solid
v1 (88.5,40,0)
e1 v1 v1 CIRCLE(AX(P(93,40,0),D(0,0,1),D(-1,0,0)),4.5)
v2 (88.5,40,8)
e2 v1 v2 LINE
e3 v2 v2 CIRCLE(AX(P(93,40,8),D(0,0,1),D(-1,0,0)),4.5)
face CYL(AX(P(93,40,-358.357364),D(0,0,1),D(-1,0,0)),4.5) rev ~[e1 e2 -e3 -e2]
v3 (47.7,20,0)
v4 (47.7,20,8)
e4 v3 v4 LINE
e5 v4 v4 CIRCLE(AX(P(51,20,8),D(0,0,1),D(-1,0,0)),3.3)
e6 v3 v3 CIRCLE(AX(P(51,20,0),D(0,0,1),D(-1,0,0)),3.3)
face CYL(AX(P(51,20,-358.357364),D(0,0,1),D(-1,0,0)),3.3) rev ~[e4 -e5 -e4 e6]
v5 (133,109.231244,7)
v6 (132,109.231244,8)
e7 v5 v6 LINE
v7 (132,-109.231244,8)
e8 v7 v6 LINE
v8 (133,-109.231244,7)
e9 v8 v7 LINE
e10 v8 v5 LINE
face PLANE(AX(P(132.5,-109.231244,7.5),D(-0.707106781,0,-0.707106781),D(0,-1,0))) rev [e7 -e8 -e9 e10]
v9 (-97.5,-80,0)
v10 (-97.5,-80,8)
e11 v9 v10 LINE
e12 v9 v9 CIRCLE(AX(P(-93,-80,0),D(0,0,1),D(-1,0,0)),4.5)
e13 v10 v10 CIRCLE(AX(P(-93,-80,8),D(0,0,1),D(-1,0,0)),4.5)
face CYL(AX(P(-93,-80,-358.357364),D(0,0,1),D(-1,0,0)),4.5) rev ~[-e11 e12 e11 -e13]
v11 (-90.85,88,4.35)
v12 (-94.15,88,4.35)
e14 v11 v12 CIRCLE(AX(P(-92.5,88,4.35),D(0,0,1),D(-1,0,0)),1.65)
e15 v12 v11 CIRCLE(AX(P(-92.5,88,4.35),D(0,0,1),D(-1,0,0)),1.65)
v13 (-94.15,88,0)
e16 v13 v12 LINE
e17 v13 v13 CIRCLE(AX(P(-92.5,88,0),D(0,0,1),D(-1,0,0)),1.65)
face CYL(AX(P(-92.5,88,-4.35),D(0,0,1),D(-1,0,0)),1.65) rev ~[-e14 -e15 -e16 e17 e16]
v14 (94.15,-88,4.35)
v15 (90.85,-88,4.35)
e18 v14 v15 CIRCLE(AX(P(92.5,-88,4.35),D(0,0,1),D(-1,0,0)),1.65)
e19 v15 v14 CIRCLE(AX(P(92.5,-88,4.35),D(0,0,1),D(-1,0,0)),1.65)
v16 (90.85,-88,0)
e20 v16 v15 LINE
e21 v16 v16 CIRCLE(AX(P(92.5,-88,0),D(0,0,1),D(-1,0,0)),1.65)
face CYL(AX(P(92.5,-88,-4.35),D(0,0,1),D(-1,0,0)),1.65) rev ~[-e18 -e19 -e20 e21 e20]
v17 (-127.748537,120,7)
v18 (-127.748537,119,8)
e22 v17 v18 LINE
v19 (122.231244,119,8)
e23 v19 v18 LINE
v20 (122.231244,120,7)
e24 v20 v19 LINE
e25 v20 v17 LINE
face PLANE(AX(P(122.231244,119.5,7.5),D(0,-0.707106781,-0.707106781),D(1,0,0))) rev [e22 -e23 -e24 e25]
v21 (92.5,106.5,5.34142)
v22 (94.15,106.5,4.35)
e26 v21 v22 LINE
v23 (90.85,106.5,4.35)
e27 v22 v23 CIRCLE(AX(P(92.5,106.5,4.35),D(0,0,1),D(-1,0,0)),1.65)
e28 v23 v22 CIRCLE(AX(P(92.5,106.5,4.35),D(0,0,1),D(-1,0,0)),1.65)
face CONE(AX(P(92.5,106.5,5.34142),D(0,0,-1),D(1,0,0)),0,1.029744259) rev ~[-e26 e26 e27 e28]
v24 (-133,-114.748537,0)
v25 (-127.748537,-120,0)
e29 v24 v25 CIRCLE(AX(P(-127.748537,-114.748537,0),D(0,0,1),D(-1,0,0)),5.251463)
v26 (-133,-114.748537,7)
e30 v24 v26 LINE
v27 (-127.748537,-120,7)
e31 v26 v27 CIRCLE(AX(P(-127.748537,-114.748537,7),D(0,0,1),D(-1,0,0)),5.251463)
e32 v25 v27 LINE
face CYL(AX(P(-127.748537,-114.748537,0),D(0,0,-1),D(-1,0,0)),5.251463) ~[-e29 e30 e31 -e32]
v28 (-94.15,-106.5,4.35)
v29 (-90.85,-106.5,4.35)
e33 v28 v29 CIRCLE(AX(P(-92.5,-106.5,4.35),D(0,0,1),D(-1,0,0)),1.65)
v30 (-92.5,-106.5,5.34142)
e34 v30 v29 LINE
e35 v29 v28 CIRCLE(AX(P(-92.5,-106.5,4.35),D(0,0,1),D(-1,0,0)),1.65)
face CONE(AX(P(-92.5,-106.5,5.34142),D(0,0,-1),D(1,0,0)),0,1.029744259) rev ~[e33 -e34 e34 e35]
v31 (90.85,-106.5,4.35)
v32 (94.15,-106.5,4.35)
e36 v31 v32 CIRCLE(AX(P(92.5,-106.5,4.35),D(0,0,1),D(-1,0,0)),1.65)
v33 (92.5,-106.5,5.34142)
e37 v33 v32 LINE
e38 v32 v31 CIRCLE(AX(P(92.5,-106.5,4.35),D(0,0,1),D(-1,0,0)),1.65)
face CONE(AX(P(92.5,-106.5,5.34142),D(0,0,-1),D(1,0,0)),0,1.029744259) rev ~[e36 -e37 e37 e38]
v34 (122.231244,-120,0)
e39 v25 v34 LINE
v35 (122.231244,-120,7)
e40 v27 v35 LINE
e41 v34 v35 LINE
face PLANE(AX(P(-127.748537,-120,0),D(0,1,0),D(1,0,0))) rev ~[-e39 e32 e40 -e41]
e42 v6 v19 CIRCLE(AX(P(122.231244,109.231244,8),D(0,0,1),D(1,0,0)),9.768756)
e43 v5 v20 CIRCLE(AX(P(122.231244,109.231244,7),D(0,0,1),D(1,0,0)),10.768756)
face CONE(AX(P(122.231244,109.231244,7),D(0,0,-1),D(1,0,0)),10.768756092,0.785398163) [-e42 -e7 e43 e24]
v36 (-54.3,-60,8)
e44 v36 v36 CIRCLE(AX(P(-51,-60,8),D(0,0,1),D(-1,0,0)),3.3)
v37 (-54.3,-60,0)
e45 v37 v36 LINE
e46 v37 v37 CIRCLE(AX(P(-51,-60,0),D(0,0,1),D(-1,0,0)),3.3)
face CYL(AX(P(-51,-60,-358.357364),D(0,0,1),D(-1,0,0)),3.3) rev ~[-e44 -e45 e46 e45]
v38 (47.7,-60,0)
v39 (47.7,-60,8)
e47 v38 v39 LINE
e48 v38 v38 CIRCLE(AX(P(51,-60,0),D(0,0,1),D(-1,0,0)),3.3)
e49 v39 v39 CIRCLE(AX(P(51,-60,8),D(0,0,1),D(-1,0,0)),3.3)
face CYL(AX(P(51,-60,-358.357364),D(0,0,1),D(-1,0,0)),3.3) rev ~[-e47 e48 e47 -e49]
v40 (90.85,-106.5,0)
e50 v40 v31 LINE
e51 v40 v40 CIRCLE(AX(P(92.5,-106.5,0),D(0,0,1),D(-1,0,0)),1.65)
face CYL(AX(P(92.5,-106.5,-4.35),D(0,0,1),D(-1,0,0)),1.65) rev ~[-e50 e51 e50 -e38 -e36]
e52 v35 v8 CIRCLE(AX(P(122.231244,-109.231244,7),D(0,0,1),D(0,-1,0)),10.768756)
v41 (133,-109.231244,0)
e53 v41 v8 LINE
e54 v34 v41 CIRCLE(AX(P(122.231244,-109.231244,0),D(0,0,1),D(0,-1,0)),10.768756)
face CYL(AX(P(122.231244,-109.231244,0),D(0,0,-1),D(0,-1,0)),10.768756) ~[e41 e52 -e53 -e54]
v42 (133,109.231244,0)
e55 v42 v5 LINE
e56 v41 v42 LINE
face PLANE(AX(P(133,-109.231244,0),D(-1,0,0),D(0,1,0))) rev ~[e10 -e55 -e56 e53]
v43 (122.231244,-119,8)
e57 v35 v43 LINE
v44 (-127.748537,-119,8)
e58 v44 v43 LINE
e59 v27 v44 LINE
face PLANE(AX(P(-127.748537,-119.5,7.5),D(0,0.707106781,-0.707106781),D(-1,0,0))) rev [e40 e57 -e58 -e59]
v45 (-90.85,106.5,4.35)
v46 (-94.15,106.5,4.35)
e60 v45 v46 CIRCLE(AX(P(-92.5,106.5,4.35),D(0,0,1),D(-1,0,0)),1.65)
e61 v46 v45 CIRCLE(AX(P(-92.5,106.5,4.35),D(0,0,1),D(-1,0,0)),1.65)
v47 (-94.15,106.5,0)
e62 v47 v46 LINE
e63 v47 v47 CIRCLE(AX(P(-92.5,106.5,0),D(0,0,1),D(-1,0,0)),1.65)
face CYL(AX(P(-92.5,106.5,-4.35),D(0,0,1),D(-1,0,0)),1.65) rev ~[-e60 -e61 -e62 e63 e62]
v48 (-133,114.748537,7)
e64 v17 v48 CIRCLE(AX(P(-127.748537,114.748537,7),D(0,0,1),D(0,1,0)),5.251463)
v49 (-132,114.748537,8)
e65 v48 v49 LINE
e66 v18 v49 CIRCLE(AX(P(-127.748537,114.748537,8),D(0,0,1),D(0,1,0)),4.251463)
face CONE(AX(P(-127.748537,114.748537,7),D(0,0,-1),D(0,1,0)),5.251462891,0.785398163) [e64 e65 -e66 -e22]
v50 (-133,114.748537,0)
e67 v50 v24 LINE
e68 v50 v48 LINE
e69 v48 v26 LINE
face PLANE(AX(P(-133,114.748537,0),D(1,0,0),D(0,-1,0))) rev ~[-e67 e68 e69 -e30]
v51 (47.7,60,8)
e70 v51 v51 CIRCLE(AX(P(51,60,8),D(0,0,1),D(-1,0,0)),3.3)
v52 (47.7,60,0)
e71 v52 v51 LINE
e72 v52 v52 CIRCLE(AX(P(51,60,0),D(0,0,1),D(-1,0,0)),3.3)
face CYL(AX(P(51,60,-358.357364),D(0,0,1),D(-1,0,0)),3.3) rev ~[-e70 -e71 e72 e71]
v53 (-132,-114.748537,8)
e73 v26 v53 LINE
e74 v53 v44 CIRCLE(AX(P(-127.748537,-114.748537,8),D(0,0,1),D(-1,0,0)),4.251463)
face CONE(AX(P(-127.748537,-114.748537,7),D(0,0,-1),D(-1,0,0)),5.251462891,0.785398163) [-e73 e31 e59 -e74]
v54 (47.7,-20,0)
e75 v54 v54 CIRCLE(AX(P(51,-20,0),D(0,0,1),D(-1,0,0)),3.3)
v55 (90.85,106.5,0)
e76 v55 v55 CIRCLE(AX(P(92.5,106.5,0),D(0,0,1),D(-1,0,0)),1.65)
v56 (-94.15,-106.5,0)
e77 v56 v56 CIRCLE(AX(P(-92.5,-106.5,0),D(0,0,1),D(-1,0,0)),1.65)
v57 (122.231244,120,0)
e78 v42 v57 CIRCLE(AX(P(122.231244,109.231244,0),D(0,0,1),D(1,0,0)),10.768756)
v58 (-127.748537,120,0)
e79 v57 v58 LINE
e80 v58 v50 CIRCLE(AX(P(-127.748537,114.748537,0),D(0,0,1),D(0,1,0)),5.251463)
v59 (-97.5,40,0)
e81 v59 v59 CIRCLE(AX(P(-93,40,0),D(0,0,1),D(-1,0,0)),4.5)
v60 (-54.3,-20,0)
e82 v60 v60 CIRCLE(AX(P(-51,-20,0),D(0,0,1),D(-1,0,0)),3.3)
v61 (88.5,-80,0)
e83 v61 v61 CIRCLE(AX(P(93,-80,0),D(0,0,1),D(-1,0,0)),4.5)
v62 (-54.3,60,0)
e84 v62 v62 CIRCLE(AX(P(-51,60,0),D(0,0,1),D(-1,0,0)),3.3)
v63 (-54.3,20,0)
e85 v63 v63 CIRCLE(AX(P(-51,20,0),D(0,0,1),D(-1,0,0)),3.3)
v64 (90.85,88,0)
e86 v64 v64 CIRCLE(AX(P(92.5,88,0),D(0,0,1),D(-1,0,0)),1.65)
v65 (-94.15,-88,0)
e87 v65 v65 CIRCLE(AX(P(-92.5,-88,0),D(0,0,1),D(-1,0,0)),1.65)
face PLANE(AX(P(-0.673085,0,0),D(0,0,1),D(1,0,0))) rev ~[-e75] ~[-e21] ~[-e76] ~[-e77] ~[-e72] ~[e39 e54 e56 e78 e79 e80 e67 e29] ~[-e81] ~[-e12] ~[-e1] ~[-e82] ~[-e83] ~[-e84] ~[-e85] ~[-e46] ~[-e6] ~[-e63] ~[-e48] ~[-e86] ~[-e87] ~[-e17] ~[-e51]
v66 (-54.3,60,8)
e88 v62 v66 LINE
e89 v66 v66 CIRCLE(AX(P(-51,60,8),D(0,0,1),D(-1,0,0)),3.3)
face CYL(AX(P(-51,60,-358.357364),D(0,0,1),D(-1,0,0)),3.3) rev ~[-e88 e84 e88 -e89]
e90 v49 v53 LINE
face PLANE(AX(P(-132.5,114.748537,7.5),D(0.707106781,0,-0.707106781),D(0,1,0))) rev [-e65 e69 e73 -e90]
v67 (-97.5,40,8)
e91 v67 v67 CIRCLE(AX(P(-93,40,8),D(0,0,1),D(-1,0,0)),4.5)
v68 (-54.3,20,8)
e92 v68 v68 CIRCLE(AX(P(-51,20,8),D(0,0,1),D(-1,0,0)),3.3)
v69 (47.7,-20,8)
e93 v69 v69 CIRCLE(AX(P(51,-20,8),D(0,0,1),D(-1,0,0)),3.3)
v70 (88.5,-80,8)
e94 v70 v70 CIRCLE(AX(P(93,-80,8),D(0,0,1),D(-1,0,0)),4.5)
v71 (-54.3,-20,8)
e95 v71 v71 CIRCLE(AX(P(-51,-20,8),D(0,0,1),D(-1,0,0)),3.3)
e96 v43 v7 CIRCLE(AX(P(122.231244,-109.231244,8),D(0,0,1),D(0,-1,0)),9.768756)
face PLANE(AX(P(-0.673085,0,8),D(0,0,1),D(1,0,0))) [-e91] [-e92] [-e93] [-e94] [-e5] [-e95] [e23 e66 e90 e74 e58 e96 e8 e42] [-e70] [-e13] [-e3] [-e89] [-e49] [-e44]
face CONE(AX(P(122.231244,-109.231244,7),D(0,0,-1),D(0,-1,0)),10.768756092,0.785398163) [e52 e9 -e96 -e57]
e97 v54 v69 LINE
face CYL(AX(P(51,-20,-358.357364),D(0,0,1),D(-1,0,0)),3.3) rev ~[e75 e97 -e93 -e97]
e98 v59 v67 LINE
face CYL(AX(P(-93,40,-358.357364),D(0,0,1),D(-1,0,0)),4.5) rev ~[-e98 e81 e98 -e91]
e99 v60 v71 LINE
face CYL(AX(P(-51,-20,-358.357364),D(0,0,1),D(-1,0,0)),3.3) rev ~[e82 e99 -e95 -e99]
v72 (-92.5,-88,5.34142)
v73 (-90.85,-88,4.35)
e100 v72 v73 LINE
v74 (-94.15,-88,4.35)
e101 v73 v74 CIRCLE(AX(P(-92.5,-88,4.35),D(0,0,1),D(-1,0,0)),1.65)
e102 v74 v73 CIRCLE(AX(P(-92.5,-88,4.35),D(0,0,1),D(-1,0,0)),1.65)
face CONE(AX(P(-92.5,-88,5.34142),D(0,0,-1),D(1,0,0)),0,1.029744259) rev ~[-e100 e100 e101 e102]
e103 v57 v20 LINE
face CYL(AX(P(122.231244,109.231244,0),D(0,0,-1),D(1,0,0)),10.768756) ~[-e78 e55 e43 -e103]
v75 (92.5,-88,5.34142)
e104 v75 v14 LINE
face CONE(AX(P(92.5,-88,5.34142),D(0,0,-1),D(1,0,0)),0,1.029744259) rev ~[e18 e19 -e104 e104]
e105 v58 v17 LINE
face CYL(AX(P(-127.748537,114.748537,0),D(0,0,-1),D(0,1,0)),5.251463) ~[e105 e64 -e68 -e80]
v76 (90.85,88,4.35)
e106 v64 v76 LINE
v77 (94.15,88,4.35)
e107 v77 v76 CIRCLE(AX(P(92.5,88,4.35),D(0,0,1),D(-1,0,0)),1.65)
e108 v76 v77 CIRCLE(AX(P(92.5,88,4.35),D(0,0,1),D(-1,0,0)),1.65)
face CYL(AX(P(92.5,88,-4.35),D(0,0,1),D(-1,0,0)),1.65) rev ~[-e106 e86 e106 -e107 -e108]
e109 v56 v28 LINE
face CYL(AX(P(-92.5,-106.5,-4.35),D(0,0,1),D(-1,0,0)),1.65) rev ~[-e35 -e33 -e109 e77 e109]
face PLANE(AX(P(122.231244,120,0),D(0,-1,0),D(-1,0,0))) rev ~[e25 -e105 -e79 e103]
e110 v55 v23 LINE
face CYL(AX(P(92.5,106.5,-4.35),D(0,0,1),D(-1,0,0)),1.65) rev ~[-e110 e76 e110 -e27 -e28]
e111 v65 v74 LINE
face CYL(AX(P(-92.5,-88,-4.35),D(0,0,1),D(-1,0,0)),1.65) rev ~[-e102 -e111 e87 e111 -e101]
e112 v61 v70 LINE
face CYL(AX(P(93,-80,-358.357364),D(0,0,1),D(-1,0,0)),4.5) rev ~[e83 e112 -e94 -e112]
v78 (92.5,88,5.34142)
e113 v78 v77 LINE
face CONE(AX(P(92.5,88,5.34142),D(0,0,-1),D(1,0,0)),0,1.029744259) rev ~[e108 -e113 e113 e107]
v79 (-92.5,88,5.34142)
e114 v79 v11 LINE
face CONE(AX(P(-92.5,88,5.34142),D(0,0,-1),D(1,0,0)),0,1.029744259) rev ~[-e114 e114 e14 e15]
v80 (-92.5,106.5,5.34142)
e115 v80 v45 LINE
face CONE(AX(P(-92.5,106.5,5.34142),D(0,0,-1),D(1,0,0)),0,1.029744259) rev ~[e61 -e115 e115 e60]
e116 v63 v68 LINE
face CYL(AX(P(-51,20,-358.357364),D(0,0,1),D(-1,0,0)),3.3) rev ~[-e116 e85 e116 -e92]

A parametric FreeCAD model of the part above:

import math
import FreeCAD as App
import Part
import Sketcher
Q = App.Units.Quantity


def edges_at(feature, points):
    """Names of the edges that pass closest to the given points."""
    edges = feature.Shape.Edges
    near = lambda p: min(range(len(edges)), key=lambda i: edges[i].distToShape(Part.Vertex(*p))[0])
    return sorted({f"Edge{near(p) + 1}" for p in points})

doc = App.newDocument("Part")
body = doc.addObject("PartDesign::Body", "Body")

# Sketch on XY plane
sketch1 = body.newObject("Sketcher::SketchObject", "Sketch")
sketch1.AttachmentSupport = (doc.getObject("XY_Plane"), [""])
sketch1.MapMode = "FlatFace"
sketch1.addGeometry([
    Part.LineSegment(App.Vector(-128, -120, 0), App.Vector(122, -120, 0)),  # 0
    Part.ArcOfCircle(Part.Circle(App.Vector(122, -109, 0), App.Vector(0, 0, 1), 11), math.radians(-90), math.radians(0)),  # 1
    Part.LineSegment(App.Vector(133, -109, 0), App.Vector(133, 109, 0)),  # 2
    Part.ArcOfCircle(Part.Circle(App.Vector(122, 109, 0), App.Vector(0, 0, 1), 11), math.radians(0), math.radians(90)),  # 3
    Part.LineSegment(App.Vector(122, 120, 0), App.Vector(-128, 120, 0)),  # 4
    Part.ArcOfCircle(Part.Circle(App.Vector(-128, 115, 0), App.Vector(0, 0, 1), 5), math.radians(90), math.radians(180)),  # 5
    Part.LineSegment(App.Vector(-133, 115, 0), App.Vector(-133, -115, 0)),  # 6
    Part.ArcOfCircle(Part.Circle(App.Vector(-128, -115, 0), App.Vector(0, 0, 1), 5), math.radians(180), math.radians(270)),  # 7
], False)
sketch1.addConstraint([
    Sketcher.Constraint("Tangent", 0, 2, 1, 1),
    Sketcher.Constraint("Tangent", 1, 2, 2, 1),
    Sketcher.Constraint("Tangent", 2, 2, 3, 1),
    Sketcher.Constraint("Tangent", 3, 2, 4, 1),
    Sketcher.Constraint("Tangent", 4, 2, 5, 1),
    Sketcher.Constraint("Tangent", 5, 2, 6, 1),
    Sketcher.Constraint("Tangent", 6, 2, 7, 1),
    Sketcher.Constraint("Tangent", 7, 2, 0, 1),
    Sketcher.Constraint("Horizontal", 0),
    Sketcher.Constraint("Vertical", 2),
    Sketcher.Constraint("Horizontal", 4),
    Sketcher.Constraint("Vertical", 6),
    Sketcher.Constraint("Equal", 1, 3),
    Sketcher.Constraint("Equal", 5, 7),
    Sketcher.Constraint("DistanceY", 0, 2, -1, 1, Q("120 mm")),
    Sketcher.Constraint("DistanceX", -1, 1, 1, 2, Q("133 mm")),
    Sketcher.Constraint("DistanceY", -1, 1, 3, 2, Q("120 mm")),
    Sketcher.Constraint("DistanceX", 5, 2, -1, 1, Q("133 mm")),
    Sketcher.Constraint("Radius", 1, Q("10.768756 mm")),
    Sketcher.Constraint("Radius", 5, Q("5.251463 mm")),
])
pad1 = body.newObject("PartDesign::Pad", "Pad")
pad1.Profile = sketch1
pad1.Length = 8
doc.recompute()

chamfer = body.newObject("PartDesign::Chamfer", "Chamfer")
chamfer.Base = (pad1, edges_at(pad1, [
    (-2.759, -120, 8),
    (129.846, -116.846, 8),
    (133, 0, 8),
    (129.846, 116.846, 8),
    (-2.759, 120, 8),
    (-131.462, 118.462, 8),
    (-133, 0, 8),
    (-131.462, -118.462, 8),
]))
chamfer.Size = 1

# Sketch on XY plane
sketch2 = body.newObject("Sketcher::SketchObject", "Sketch001")
sketch2.AttachmentSupport = (doc.getObject("XY_Plane"), [""])
sketch2.MapMode = "FlatFace"
sketch2.addGeometry([
    Part.Circle(App.Vector(-51, -60, 0), App.Vector(0, 0, 1), 3.3),  # 0
    Part.Circle(App.Vector(-51, -20, 0), App.Vector(0, 0, 1), 3.3),  # 1
    Part.Circle(App.Vector(-51, 20, 0), App.Vector(0, 0, 1), 3.3),  # 2
    Part.Circle(App.Vector(-51, 60, 0), App.Vector(0, 0, 1), 3.3),  # 3
    Part.Circle(App.Vector(51, 60, 0), App.Vector(0, 0, 1), 3.3),  # 4
    Part.Circle(App.Vector(51, 20, 0), App.Vector(0, 0, 1), 3.3),  # 5
    Part.Circle(App.Vector(51, -20, 0), App.Vector(0, 0, 1), 3.3),  # 6
    Part.Circle(App.Vector(51, -60, 0), App.Vector(0, 0, 1), 3.3),  # 7
], False)
sketch2.addConstraint([
    Sketcher.Constraint("Equal", 0, 1),
    Sketcher.Constraint("Equal", 1, 2),
    Sketcher.Constraint("Equal", 2, 3),
    Sketcher.Constraint("Equal", 3, 4),
    Sketcher.Constraint("Equal", 4, 5),
    Sketcher.Constraint("Equal", 5, 6),
    Sketcher.Constraint("Equal", 6, 7),
    Sketcher.Constraint("Symmetric", 0, 3, 4, 3, -1, 1),
    Sketcher.Constraint("Symmetric", 1, 3, 5, 3, -1, 1),
    Sketcher.Constraint("Symmetric", 2, 3, 6, 3, -1, 1),
    Sketcher.Constraint("Symmetric", 3, 3, 7, 3, -1, 1),
    Sketcher.Constraint("Symmetric", 3, 3, 4, 3, -2),
    Sketcher.Constraint("Symmetric", 2, 3, 5, 3, -2),
    Sketcher.Constraint("Vertical", 0, 3, 1, 3),
    Sketcher.Constraint("Diameter", 0, Q("6.6 mm")),
    Sketcher.Constraint("DistanceX", 0, 3, -1, 1, Q("51 mm")),
    Sketcher.Constraint("DistanceY", 0, 3, -1, 1, Q("60 mm")),
    Sketcher.Constraint("DistanceY", 1, 3, -1, 1, Q("20 mm")),
])
doc.recompute()
hole = body.newObject("PartDesign::Hole", "Hole")
hole.Profile = sketch2
hole.ThreadType = "None"
hole.Diameter = 6.6
hole.DepthType = "ThroughAll"
hole.Reversed = True

# Sketch on XY plane
sketch3 = body.newObject("Sketcher::SketchObject", "Sketch002")
sketch3.AttachmentSupport = (doc.getObject("XY_Plane"), [""])
sketch3.MapMode = "FlatFace"
sketch3.addGeometry([
    Part.Circle(App.Vector(-93, -80, 0), App.Vector(0, 0, 1), 4.5),
    Part.Circle(App.Vector(-93, 40, 0), App.Vector(0, 0, 1), 4.5),
    Part.Circle(App.Vector(93, 40, 0), App.Vector(0, 0, 1), 4.5),
    Part.Circle(App.Vector(93, -80, 0), App.Vector(0, 0, 1), 4.5),
], False)
sketch3.addConstraint([
    Sketcher.Constraint("Equal", 0, 1),
    Sketcher.Constraint("Equal", 1, 2),
    Sketcher.Constraint("Equal", 2, 3),
    Sketcher.Constraint("Symmetric", 1, 3, 2, 3, -2),
    Sketcher.Constraint("Symmetric", 0, 3, 3, 3, -2),
    Sketcher.Constraint("Vertical", 0, 3, 1, 3),
    Sketcher.Constraint("Diameter", 0, Q("9 mm")),
    Sketcher.Constraint("DistanceX", 0, 3, -1, 1, Q("93 mm")),
    Sketcher.Constraint("DistanceY", 0, 3, -1, 1, Q("80 mm")),
    Sketcher.Constraint("DistanceY", -1, 1, 1, 3, Q("40 mm")),
])
doc.recompute()
hole2 = body.newObject("PartDesign::Hole", "Hole001")
hole2.Profile = sketch3
hole2.ThreadType = "None"
hole2.Diameter = 9
hole2.DepthType = "ThroughAll"
hole2.Reversed = True

# Sketch on XY plane
sketch4 = body.newObject("Sketcher::SketchObject", "Sketch003")
sketch4.AttachmentSupport = (doc.getObject("XY_Plane"), [""])
sketch4.MapMode = "FlatFace"
sketch4.addGeometry([
    Part.Circle(App.Vector(-92.5, -88, 0), App.Vector(0, 0, 1), 1.6),  # 0
    Part.Circle(App.Vector(-92.5, -106.5, 0), App.Vector(0, 0, 1), 1.6),  # 1
    Part.Circle(App.Vector(92.5, -88, 0), App.Vector(0, 0, 1), 1.6),  # 2
    Part.Circle(App.Vector(92.5, -106.5, 0), App.Vector(0, 0, 1), 1.6),  # 3
    Part.Circle(App.Vector(92.5, 88, 0), App.Vector(0, 0, 1), 1.6),  # 4
    Part.Circle(App.Vector(92.5, 106.5, 0), App.Vector(0, 0, 1), 1.6),  # 5
    Part.Circle(App.Vector(-92.5, 88, 0), App.Vector(0, 0, 1), 1.6),  # 6
    Part.Circle(App.Vector(-92.5, 106.5, 0), App.Vector(0, 0, 1), 1.6),  # 7
], False)
sketch4.addConstraint([
    Sketcher.Constraint("Equal", 0, 1),
    Sketcher.Constraint("Equal", 1, 2),
    Sketcher.Constraint("Equal", 2, 3),
    Sketcher.Constraint("Equal", 3, 4),
    Sketcher.Constraint("Equal", 4, 5),
    Sketcher.Constraint("Equal", 5, 6),
    Sketcher.Constraint("Equal", 6, 7),
    Sketcher.Constraint("Symmetric", 0, 3, 4, 3, -1, 1),
    Sketcher.Constraint("Symmetric", 1, 3, 5, 3, -1, 1),
    Sketcher.Constraint("Symmetric", 2, 3, 6, 3, -1, 1),
    Sketcher.Constraint("Symmetric", 3, 3, 7, 3, -1, 1),
    Sketcher.Constraint("Symmetric", 0, 3, 2, 3, -2),
    Sketcher.Constraint("Symmetric", 1, 3, 3, 3, -2),
    Sketcher.Constraint("Vertical", 0, 3, 1, 3),
    Sketcher.Constraint("Diameter", 0, Q("3.3 mm")),
    Sketcher.Constraint("DistanceY", 0, 3, -1, 1, Q("88 mm")),
    Sketcher.Constraint("DistanceX", 0, 3, 2, 3, Q("185 mm")),
    Sketcher.Constraint("DistanceY", 3, 3, 5, 3, Q("213 mm")),
])
doc.recompute()
hole3 = body.newObject("PartDesign::Hole", "Hole002")
hole3.Profile = sketch4
hole3.ThreadType = "None"
hole3.Diameter = 3.3
hole3.DepthType = "Dimension"
hole3.Depth = 4.35
hole3.DrillPoint = "Angled"
hole3.DrillPointAngle = 118
hole3.Reversed = True

doc.recompute()
